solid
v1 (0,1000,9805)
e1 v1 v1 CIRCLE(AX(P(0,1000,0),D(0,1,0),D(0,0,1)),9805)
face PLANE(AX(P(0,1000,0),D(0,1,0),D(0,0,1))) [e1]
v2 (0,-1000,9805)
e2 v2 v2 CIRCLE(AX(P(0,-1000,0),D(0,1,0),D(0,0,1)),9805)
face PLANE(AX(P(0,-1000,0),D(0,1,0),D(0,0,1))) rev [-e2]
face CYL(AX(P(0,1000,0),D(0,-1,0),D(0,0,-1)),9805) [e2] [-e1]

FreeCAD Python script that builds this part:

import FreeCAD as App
import Part
import Sketcher
from FreeCAD import Vector

doc = App.newDocument("Part")
body = doc.addObject("PartDesign::Body", "Body")

# Sketch on XZ plane
sketch1 = body.newObject("Sketcher::SketchObject", "Sketch")
sketch1.AttachmentSupport = (doc.getObject("XZ_Plane"), [""])
sketch1.MapMode = "FlatFace"
sketch1.addGeometry(Part.Circle(Vector(0, 0, 0), Vector(0, 0, 1), 9805), False)
sketch1.addConstraint([
    Sketcher.Constraint("Coincident", 0, 3, -1, 1),
    Sketcher.Constraint("Diameter", 0, 19610.0),
])
pad1 = body.newObject("PartDesign::Pad", "Pad")
pad1.Profile = sketch1
pad1.Length = 2000
pad1.Midplane = True

doc.recompute()
